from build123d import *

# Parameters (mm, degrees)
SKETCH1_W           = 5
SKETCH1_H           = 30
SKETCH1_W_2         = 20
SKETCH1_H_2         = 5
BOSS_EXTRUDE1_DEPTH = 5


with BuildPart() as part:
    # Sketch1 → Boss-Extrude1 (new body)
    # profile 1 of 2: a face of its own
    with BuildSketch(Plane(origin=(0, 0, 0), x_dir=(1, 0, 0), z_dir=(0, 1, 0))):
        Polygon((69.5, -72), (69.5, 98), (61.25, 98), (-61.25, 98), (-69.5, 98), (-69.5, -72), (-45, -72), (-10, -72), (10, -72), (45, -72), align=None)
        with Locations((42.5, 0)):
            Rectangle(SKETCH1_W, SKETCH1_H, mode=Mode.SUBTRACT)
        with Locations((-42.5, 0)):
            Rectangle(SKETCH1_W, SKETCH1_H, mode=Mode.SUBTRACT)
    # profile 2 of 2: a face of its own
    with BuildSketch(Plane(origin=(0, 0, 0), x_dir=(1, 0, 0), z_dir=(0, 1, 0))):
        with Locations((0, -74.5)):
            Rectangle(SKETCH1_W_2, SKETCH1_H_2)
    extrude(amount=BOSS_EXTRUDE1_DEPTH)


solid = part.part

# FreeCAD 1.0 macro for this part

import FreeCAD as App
import Part
import Sketcher

V = App.Vector


def add_polygon(sketch, points):
    """Adds a closed chain of lines whose ends are joined by coincident constraints."""
    first, n = sketch.GeometryCount, len(points)
    for a, b in zip(points, points[1:] + points[:1]):
        sketch.addGeometry(Part.LineSegment(App.Vector(*a, 0), App.Vector(*b, 0)), False)
    for i in range(n):
        sketch.addConstraint(Sketcher.Constraint("Coincident", first + i, 2, first + (i + 1) % n, 1))

doc = App.newDocument("Part")
params = doc.addObject("Spreadsheet::Sheet", "Params")
for row, (alias, value) in enumerate([
    ("sketch1_width", "139 mm"),
    ("sketch1_width2", "20 mm"),
    ("sketch1_width3", "5 mm"),
    ("sketch1_height", "170 mm"),
    ("sketch1_height2", "30 mm"),
    ("pad1_length", "5 mm"),
], start=1):
    params.set(f"A{row}", alias)
    params.set(f"B{row}", "=" + value)
    params.setAlias(f"B{row}", alias)

body = doc.addObject("PartDesign::Body", "Body")

sketch1 = body.newObject("Sketcher::SketchObject", "Sketch")
sketch1.AttachmentSupport = (doc.getObject("XZ_Plane"), [""])
sketch1.MapMode = "FlatFace"
add_polygon(sketch1, [(70, 72), (70, -98), (-70, -98), (-70, 72), (-10, 72), (-10, 77), (10, 77), (10, 72)])
add_polygon(sketch1, [(-40, 15), (-45, 15), (-45, -15), (-40, -15)])
add_polygon(sketch1, [(45, 15), (40, 15), (40, -15), (45, -15)])
sketch1.addConstraint([
    Sketcher.Constraint("Vertical", 0),
    Sketcher.Constraint("Horizontal", 1),
    Sketcher.Constraint("Vertical", 2),
    Sketcher.Constraint("Horizontal", 3),
    Sketcher.Constraint("Vertical", 4),
    Sketcher.Constraint("Horizontal", 5),
    Sketcher.Constraint("Vertical", 6),
    Sketcher.Constraint("Horizontal", 7),
    Sketcher.Constraint("Horizontal", 8),
    Sketcher.Constraint("Vertical", 9),
    Sketcher.Constraint("Horizontal", 10),
    Sketcher.Constraint("Vertical", 11),
    Sketcher.Constraint("Horizontal", 12),
    Sketcher.Constraint("Vertical", 13),
    Sketcher.Constraint("Horizontal", 14),
    Sketcher.Constraint("Vertical", 15),
    Sketcher.Constraint("Symmetric", 10, 2, 12, 2, -1, 1),
    Sketcher.Constraint("Symmetric", 8, 2, 14, 2, -1, 1),
    Sketcher.Constraint("Symmetric", 3, 2, 6, 2, -2),
    Sketcher.Constraint("Horizontal", 11, 2, 12, 2),
    Sketcher.Constraint("Equal", 3, 7),
    Sketcher.Constraint("Equal", 14, 4),
    Sketcher.Constraint("DistanceX", 1, 2, 1, 1, 139.0),
    Sketcher.Constraint("DistanceX", 5, 1, 5, 2, 20.0),
    Sketcher.Constraint("DistanceX", 8, 2, 8, 1, 5.0),
    Sketcher.Constraint("DistanceY", 0, 2, 0, 1, 170.0),
    Sketcher.Constraint("DistanceY", 9, 2, 9, 1, 30.0),
    Sketcher.Constraint("DistanceY", 0, 2, -1, 1, 98.0),
    Sketcher.Constraint("DistanceX", 8, 2, -1, 1, 45.0),
])
sketch1.setExpression("Constraints[38]", "Params.sketch1_width")
sketch1.setExpression("Constraints[39]", "Params.sketch1_width2")
sketch1.setExpression("Constraints[40]", "Params.sketch1_width3")
sketch1.setExpression("Constraints[41]", "Params.sketch1_height")
sketch1.setExpression("Constraints[42]", "Params.sketch1_height2")
pad1 = body.newObject("PartDesign::Pad", "Pad")
pad1.Profile = sketch1
pad1.setExpression("Length", "Params.pad1_length")
pad1.Reversed = True

doc.recompute()
